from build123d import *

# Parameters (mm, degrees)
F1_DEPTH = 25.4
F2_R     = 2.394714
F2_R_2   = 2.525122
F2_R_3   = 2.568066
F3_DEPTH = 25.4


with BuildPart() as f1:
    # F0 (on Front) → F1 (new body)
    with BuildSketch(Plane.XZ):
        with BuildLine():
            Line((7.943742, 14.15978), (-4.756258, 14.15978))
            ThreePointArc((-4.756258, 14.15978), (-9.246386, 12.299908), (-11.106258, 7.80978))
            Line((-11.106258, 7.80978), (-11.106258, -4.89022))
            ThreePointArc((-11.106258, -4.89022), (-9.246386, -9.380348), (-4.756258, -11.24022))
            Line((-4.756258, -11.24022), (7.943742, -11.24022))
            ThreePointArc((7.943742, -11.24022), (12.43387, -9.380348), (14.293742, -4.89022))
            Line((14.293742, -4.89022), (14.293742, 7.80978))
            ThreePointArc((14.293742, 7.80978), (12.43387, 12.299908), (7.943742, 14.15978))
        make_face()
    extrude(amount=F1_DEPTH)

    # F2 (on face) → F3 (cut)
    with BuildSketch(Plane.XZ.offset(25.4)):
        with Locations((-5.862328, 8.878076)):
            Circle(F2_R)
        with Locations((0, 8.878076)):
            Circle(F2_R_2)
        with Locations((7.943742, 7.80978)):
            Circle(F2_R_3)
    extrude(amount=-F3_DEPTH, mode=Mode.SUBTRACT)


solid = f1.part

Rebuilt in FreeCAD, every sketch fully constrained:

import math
import FreeCAD as App
import Part
import Sketcher
from FreeCAD import Vector
Q = App.Units.Quantity

doc = App.newDocument("Part")
body = doc.addObject("PartDesign::Body", "Body")

sketch1 = body.newObject("Sketcher::SketchObject", "Sketch")
sketch1.AttachmentSupport = (doc.getObject("XZ_Plane"), [""])
sketch1.MapMode = "FlatFace"
sketch1.addGeometry(Part.LineSegment(Vector(8, 14, 0), Vector(-5, 14, 0)), False)
sketch1.addGeometry(Part.ArcOfCircle(Part.Circle(Vector(-5, 8, 0), Vector(0, 0, 1), 6), math.radians(90), math.radians(180)), False)
sketch1.addGeometry(Part.LineSegment(Vector(-11, 8, 0), Vector(-11, -5, 0)), False)
sketch1.addGeometry(Part.ArcOfCircle(Part.Circle(Vector(-5, -5, 0), Vector(0, 0, 1), 6), math.radians(-180), math.radians(-90)), False)
sketch1.addGeometry(Part.LineSegment(Vector(-5, -11, 0), Vector(8, -11, 0)), False)
sketch1.addGeometry(Part.ArcOfCircle(Part.Circle(Vector(8, -5, 0), Vector(0, 0, 1), 6), math.radians(-90), math.radians(0)), False)
sketch1.addGeometry(Part.LineSegment(Vector(14, -5, 0), Vector(14, 8, 0)), False)
sketch1.addGeometry(Part.ArcOfCircle(Part.Circle(Vector(8, 8, 0), Vector(0, 0, 1), 6), math.radians(0), math.radians(90)), False)
sketch1.addConstraint(Sketcher.Constraint("Tangent", 0, 2, 1, 1))
sketch1.addConstraint(Sketcher.Constraint("Tangent", 1, 2, 2, 1))
sketch1.addConstraint(Sketcher.Constraint("Tangent", 2, 2, 3, 1))
sketch1.addConstraint(Sketcher.Constraint("Tangent", 3, 2, 4, 1))
sketch1.addConstraint(Sketcher.Constraint("Tangent", 4, 2, 5, 1))
sketch1.addConstraint(Sketcher.Constraint("Tangent", 5, 2, 6, 1))
sketch1.addConstraint(Sketcher.Constraint("Tangent", 6, 2, 7, 1))
sketch1.addConstraint(Sketcher.Constraint("Tangent", 7, 2, 0, 1))
sketch1.addConstraint(Sketcher.Constraint("Horizontal", 0))
sketch1.addConstraint(Sketcher.Constraint("Vertical", 2))
sketch1.addConstraint(Sketcher.Constraint("Horizontal", 4))
sketch1.addConstraint(Sketcher.Constraint("Vertical", 6))
sketch1.addConstraint(Sketcher.Constraint("Equal", 1, 3))
sketch1.addConstraint(Sketcher.Constraint("Equal", 3, 5))
sketch1.addConstraint(Sketcher.Constraint("Equal", 5, 7))
sketch1.addConstraint(Sketcher.Constraint("Equal", 4, 2))
sketch1.addConstraint(Sketcher.Constraint("Radius", 1, Q("0.25 in")))
sketch1.addConstraint(Sketcher.Constraint("DistanceX", 0, 2, 0, 1, Q("0.5 in")))
sketch1.addConstraint(Sketcher.Constraint("DistanceY", -1, 1, 1, 3, 7.80978))
sketch1.addConstraint(Sketcher.Constraint("DistanceX", -1, 1, 5, 3, 7.943742))
pad1 = body.newObject("PartDesign::Pad", "Pad")
pad1.Profile = sketch1
pad1.Length = Q("1 in")

sketch2 = body.newObject("Sketcher::SketchObject", "Sketch001")
sketch2.AttachmentSupport = (doc.getObject("XZ_Plane"), [""])
sketch2.MapMode = "FlatFace"
sketch2.AttachmentOffset = App.Placement(Vector(0, 0, 1 * 25.4), App.Rotation())
sketch2.addGeometry(Part.Circle(Vector(-5.9, 8.9, 0), Vector(0, 0, 1), 2.4), False)
sketch2.addGeometry(Part.Circle(Vector(0, 8.9, 0), Vector(0, 0, 1), 2.5), False)
sketch2.addGeometry(Part.Circle(Vector(7.9, 7.8, 0), Vector(0, 0, 1), 2.6), False)
sketch2.addConstraint(Sketcher.Constraint("PointOnObject", 1, 3, -2))
sketch2.addConstraint(Sketcher.Constraint("Horizontal", 0, 3, 1, 3))
sketch2.addConstraint(Sketcher.Constraint("Diameter", 0, 4.789428))
sketch2.addConstraint(Sketcher.Constraint("Diameter", 1, 5.050244))
sketch2.addConstraint(Sketcher.Constraint("Diameter", 2, 5.136132))
sketch2.addConstraint(Sketcher.Constraint("DistanceY", -1, 1, 2, 3, 7.80978))
sketch2.addConstraint(Sketcher.Constraint("DistanceX", 0, 3, 2, 3, 13.80607))
sketch2.addConstraint(Sketcher.Constraint("DistanceX", 0, 3, -1, 1, 5.862328))
sketch2.addConstraint(Sketcher.Constraint("DistanceY", -1, 1, 0, 3, 8.878076))
pocket1 = body.newObject("PartDesign::Pocket", "Pocket")
pocket1.Profile = sketch2
pocket1.Length = Q("1 in")

doc.recompute()
